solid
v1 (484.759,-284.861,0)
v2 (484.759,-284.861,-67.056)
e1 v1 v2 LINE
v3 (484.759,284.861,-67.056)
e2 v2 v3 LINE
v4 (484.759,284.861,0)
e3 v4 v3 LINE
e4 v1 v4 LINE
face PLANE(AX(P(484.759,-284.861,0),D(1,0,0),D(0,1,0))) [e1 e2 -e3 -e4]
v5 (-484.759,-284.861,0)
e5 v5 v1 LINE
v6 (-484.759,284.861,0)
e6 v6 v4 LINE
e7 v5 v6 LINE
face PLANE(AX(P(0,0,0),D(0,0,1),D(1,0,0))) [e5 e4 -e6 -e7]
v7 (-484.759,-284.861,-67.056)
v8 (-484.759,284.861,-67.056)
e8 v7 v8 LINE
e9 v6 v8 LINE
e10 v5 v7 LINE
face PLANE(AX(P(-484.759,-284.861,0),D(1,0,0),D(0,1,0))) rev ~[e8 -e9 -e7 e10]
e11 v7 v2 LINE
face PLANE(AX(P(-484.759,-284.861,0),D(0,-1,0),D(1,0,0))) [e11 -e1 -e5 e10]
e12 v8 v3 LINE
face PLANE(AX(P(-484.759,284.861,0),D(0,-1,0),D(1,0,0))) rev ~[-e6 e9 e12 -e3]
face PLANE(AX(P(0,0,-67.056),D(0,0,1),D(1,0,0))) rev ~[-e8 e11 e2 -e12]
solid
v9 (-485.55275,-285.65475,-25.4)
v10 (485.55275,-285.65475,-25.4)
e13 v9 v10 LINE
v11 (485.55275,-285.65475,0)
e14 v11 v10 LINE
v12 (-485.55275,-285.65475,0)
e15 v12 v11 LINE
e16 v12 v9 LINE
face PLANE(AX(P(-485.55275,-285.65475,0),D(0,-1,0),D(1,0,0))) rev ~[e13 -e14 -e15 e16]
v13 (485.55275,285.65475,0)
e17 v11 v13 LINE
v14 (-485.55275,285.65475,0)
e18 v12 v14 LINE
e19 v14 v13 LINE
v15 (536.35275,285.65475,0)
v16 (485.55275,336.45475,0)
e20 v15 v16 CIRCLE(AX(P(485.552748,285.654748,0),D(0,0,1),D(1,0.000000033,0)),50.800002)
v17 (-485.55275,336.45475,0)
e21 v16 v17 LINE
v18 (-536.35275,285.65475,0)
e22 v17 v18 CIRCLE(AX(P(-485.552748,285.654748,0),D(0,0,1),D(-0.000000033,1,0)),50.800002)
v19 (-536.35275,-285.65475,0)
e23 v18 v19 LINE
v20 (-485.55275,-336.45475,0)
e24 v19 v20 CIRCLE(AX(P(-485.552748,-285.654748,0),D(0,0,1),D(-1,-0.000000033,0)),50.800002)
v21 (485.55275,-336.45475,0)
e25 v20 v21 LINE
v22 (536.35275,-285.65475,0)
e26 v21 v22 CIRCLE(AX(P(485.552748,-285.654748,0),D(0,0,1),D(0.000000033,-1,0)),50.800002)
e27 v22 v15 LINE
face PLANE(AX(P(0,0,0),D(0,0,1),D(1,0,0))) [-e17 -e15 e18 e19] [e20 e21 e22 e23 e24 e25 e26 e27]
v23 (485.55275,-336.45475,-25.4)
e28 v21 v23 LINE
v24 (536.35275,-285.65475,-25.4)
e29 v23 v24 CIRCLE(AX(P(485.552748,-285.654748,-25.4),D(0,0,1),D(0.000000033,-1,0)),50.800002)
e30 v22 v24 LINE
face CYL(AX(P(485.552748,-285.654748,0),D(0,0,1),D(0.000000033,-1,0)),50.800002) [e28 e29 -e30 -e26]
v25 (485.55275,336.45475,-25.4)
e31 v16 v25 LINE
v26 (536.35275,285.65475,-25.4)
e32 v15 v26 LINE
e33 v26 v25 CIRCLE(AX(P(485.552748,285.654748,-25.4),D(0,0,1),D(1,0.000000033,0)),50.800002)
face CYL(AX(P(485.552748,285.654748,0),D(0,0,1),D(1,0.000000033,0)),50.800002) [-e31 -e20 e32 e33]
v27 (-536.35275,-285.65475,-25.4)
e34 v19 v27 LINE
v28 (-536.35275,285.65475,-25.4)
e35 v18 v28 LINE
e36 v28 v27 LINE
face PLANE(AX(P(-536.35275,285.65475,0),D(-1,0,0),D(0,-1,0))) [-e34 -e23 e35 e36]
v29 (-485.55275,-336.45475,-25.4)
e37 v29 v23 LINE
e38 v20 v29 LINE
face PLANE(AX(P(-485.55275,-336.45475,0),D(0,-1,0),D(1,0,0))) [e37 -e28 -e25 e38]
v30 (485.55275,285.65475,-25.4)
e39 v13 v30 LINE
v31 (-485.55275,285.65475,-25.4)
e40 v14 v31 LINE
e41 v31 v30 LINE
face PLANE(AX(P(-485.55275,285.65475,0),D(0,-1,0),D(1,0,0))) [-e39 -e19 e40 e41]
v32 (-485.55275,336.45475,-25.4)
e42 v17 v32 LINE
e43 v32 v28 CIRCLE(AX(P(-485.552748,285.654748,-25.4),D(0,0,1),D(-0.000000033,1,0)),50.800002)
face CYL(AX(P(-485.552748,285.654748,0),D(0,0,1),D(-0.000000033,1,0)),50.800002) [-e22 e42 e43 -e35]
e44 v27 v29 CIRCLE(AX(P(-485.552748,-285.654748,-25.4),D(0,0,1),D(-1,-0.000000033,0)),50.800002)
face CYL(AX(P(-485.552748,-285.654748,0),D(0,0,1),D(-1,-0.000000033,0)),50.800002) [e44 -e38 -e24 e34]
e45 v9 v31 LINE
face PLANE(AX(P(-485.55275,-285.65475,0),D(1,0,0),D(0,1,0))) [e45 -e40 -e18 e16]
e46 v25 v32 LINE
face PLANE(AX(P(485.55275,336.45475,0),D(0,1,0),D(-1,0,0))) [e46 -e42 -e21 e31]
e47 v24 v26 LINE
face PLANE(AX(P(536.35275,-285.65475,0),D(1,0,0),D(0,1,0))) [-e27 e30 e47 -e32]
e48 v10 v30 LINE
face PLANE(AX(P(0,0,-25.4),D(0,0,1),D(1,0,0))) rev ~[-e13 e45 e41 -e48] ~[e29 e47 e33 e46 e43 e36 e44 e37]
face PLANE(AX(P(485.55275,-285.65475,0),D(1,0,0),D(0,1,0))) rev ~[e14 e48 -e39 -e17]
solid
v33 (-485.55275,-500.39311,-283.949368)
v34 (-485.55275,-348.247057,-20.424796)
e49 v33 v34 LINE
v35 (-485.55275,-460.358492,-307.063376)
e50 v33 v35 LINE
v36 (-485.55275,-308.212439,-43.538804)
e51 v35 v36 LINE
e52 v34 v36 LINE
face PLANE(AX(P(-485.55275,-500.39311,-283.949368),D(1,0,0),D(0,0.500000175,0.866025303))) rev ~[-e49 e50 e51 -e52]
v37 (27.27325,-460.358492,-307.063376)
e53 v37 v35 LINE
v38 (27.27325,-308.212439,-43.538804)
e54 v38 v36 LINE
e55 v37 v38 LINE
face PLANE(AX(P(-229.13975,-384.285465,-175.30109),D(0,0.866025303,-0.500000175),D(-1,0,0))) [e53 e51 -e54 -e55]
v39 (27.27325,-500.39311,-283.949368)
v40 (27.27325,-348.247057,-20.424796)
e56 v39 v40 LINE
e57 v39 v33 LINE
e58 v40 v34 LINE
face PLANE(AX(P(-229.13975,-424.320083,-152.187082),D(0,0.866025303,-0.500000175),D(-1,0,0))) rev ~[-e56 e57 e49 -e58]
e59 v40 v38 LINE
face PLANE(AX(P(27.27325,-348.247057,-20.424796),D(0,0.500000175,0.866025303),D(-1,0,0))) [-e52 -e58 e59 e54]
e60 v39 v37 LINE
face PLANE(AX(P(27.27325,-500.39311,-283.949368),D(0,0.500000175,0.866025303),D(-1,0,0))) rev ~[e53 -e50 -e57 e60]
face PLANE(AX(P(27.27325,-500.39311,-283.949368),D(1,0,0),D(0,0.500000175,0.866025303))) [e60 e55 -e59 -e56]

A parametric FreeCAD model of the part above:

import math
import FreeCAD as App
import Part
import Sketcher
from FreeCAD import Vector
Q = App.Units.Quantity


def add_polygon(sketch, points):
    """Adds a closed chain of lines whose ends are joined by coincident constraints."""
    first, n = sketch.GeometryCount, len(points)
    for a, b in zip(points, points[1:] + points[:1]):
        sketch.addGeometry(Part.LineSegment(App.Vector(*a, 0), App.Vector(*b, 0)), False)
    for i in range(n):
        sketch.addConstraint(Sketcher.Constraint("Coincident", first + i, 2, first + (i + 1) % n, 1))

doc = App.newDocument("Part")
body = doc.addObject("PartDesign::Body", "Body")

# Sketch on XY plane
sketch1 = doc.addObject("Sketcher::SketchObject", "Sketch")
body.addObject(sketch1)
sketch1.AttachmentSupport = (doc.XY_Plane, [""])
sketch1.MapMode = "FlatFace"
add_polygon(sketch1, [(-485, 285), (-485, -285), (485, -285), (485, 285)])  # lines 0-3
sketch1.addConstraint(Sketcher.Constraint("Vertical", 0))
sketch1.addConstraint(Sketcher.Constraint("Horizontal", 1))
sketch1.addConstraint(Sketcher.Constraint("Vertical", 2))
sketch1.addConstraint(Sketcher.Constraint("Horizontal", 3))
sketch1.addConstraint(Sketcher.Constraint("Symmetric", 0, 2, 2, 2, -1, 1))
sketch1.addConstraint(Sketcher.Constraint("DistanceX", 1, 1, 1, 2, Q("38.17 in")))
sketch1.addConstraint(Sketcher.Constraint("DistanceY", 0, 2, 0, 1, Q("22.43 in")))
pad1 = doc.addObject("PartDesign::Pad", "Pad")
body.addObject(pad1)
pad1.Profile = sketch1
pad1.Length = Q("2.64 in")
pad1.Reversed = True
body2 = doc.addObject("PartDesign::Body", "Body001")

# Sketch on XY plane
sketch2 = doc.addObject("Sketcher::SketchObject", "Sketch001")
body2.addObject(sketch2)
sketch2.AttachmentSupport = (doc.getObject("XY_Plane001"), [""])
sketch2.MapMode = "FlatFace"
sketch2.addGeometry(Part.ArcOfCircle(Part.Circle(Vector(486, 286, 0), Vector(0, 0, 1), 51), math.radians(0), math.radians(90)), False)  # 0
sketch2.addGeometry(Part.LineSegment(Vector(486, 336, 0), Vector(-486, 336, 0)), False)  # 1
sketch2.addGeometry(Part.ArcOfCircle(Part.Circle(Vector(-486, 286, 0), Vector(0, 0, 1), 51), math.radians(90), math.radians(180)), False)  # 2
sketch2.addGeometry(Part.LineSegment(Vector(-536, 286, 0), Vector(-536, -286, 0)), False)  # 3
sketch2.addGeometry(Part.ArcOfCircle(Part.Circle(Vector(-486, -286, 0), Vector(0, 0, 1), 51), math.radians(-180), math.radians(-90)), False)  # 4
sketch2.addGeometry(Part.LineSegment(Vector(-486, -336, 0), Vector(486, -336, 0)), False)  # 5
sketch2.addGeometry(Part.ArcOfCircle(Part.Circle(Vector(486, -286, 0), Vector(0, 0, 1), 51), math.radians(-90), math.radians(0)), False)  # 6
sketch2.addGeometry(Part.LineSegment(Vector(536, -286, 0), Vector(536, 286, 0)), False)  # 7
add_polygon(sketch2, [(486, -286), (-486, -286), (-486, 286), (486, 286)])  # lines 8-11
sketch2.addConstraint(Sketcher.Constraint("Tangent", 0, 2, 1, 1))
sketch2.addConstraint(Sketcher.Constraint("Tangent", 1, 2, 2, 1))
sketch2.addConstraint(Sketcher.Constraint("Tangent", 2, 2, 3, 1))
sketch2.addConstraint(Sketcher.Constraint("Tangent", 3, 2, 4, 1))
sketch2.addConstraint(Sketcher.Constraint("Tangent", 4, 2, 5, 1))
sketch2.addConstraint(Sketcher.Constraint("Tangent", 5, 2, 6, 1))
sketch2.addConstraint(Sketcher.Constraint("Tangent", 6, 2, 7, 1))
sketch2.addConstraint(Sketcher.Constraint("Tangent", 7, 2, 0, 1))
sketch2.addConstraint(Sketcher.Constraint("Horizontal", 1))
sketch2.addConstraint(Sketcher.Constraint("Vertical", 3))
sketch2.addConstraint(Sketcher.Constraint("Horizontal", 5))
sketch2.addConstraint(Sketcher.Constraint("Vertical", 7))
sketch2.addConstraint(Sketcher.Constraint("Horizontal", 8))
sketch2.addConstraint(Sketcher.Constraint("Vertical", 9))
sketch2.addConstraint(Sketcher.Constraint("Horizontal", 10))
sketch2.addConstraint(Sketcher.Constraint("Vertical", 11))
sketch2.addConstraint(Sketcher.Constraint("Coincident", 8, 2, 4, 3))
sketch2.addConstraint(Sketcher.Constraint("Coincident", 9, 2, 2, 3))
sketch2.addConstraint(Sketcher.Constraint("Coincident", 10, 2, 0, 3))
sketch2.addConstraint(Sketcher.Constraint("Equal", 4, 6))
sketch2.addConstraint(Sketcher.Constraint("Symmetric", 0, 3, 4, 3, -1, 1))
sketch2.addConstraint(Sketcher.Constraint("Radius", 0, Q("2.0000001 in")))
sketch2.addConstraint(Sketcher.Constraint("DistanceX", 1, 2, 1, 1, Q("38.2325 in")))
sketch2.addConstraint(Sketcher.Constraint("DistanceY", 3, 2, 3, 1, Q("22.4925 in")))
pad2 = doc.addObject("PartDesign::Pad", "Pad001")
body2.addObject(pad2)
pad2.Profile = sketch2
pad2.Length = Q("1 in")
pad2.Reversed = True
body3 = doc.addObject("PartDesign::Body", "Body002")

# Sketch on an angled plane
sketch3 = doc.addObject("Sketcher::SketchObject", "Sketch002")
body3.addObject(sketch3)
sketch3.Placement = App.Placement(Vector(0, -252.341063, 145.68918), App.Rotation(Vector(-1, 0, 0), Vector(0, 0.500000175, 0.866025303), Vector(0, 0.866025303, -0.500000175), "ZXY"))
add_polygon(sketch3, [(-27, -192), (-27, -496), (486, -496), (486, -192)])  # lines 0-3
sketch3.addConstraint(Sketcher.Constraint("Vertical", 0))
sketch3.addConstraint(Sketcher.Constraint("Horizontal", 1))
sketch3.addConstraint(Sketcher.Constraint("Vertical", 2))
sketch3.addConstraint(Sketcher.Constraint("Horizontal", 3))
sketch3.addConstraint(Sketcher.Constraint("DistanceX", 1, 1, 1, 2, Q("20.19 in")))
sketch3.addConstraint(Sketcher.Constraint("DistanceY", 0, 2, 0, 1, Q("11.98 in")))
sketch3.addConstraint(Sketcher.Constraint("DistanceX", 0, 2, -1, 1, Q("27.27325 mm")))
sketch3.addConstraint(Sketcher.Constraint("DistanceY", 0, 2, -1, 1, Q("496.10392 mm")))
pad3 = doc.addObject("PartDesign::Pad", "Pad002")
body3.addObject(pad3)
pad3.Profile = sketch3
pad3.Length = Q("1.82 in")

doc.recompute()
